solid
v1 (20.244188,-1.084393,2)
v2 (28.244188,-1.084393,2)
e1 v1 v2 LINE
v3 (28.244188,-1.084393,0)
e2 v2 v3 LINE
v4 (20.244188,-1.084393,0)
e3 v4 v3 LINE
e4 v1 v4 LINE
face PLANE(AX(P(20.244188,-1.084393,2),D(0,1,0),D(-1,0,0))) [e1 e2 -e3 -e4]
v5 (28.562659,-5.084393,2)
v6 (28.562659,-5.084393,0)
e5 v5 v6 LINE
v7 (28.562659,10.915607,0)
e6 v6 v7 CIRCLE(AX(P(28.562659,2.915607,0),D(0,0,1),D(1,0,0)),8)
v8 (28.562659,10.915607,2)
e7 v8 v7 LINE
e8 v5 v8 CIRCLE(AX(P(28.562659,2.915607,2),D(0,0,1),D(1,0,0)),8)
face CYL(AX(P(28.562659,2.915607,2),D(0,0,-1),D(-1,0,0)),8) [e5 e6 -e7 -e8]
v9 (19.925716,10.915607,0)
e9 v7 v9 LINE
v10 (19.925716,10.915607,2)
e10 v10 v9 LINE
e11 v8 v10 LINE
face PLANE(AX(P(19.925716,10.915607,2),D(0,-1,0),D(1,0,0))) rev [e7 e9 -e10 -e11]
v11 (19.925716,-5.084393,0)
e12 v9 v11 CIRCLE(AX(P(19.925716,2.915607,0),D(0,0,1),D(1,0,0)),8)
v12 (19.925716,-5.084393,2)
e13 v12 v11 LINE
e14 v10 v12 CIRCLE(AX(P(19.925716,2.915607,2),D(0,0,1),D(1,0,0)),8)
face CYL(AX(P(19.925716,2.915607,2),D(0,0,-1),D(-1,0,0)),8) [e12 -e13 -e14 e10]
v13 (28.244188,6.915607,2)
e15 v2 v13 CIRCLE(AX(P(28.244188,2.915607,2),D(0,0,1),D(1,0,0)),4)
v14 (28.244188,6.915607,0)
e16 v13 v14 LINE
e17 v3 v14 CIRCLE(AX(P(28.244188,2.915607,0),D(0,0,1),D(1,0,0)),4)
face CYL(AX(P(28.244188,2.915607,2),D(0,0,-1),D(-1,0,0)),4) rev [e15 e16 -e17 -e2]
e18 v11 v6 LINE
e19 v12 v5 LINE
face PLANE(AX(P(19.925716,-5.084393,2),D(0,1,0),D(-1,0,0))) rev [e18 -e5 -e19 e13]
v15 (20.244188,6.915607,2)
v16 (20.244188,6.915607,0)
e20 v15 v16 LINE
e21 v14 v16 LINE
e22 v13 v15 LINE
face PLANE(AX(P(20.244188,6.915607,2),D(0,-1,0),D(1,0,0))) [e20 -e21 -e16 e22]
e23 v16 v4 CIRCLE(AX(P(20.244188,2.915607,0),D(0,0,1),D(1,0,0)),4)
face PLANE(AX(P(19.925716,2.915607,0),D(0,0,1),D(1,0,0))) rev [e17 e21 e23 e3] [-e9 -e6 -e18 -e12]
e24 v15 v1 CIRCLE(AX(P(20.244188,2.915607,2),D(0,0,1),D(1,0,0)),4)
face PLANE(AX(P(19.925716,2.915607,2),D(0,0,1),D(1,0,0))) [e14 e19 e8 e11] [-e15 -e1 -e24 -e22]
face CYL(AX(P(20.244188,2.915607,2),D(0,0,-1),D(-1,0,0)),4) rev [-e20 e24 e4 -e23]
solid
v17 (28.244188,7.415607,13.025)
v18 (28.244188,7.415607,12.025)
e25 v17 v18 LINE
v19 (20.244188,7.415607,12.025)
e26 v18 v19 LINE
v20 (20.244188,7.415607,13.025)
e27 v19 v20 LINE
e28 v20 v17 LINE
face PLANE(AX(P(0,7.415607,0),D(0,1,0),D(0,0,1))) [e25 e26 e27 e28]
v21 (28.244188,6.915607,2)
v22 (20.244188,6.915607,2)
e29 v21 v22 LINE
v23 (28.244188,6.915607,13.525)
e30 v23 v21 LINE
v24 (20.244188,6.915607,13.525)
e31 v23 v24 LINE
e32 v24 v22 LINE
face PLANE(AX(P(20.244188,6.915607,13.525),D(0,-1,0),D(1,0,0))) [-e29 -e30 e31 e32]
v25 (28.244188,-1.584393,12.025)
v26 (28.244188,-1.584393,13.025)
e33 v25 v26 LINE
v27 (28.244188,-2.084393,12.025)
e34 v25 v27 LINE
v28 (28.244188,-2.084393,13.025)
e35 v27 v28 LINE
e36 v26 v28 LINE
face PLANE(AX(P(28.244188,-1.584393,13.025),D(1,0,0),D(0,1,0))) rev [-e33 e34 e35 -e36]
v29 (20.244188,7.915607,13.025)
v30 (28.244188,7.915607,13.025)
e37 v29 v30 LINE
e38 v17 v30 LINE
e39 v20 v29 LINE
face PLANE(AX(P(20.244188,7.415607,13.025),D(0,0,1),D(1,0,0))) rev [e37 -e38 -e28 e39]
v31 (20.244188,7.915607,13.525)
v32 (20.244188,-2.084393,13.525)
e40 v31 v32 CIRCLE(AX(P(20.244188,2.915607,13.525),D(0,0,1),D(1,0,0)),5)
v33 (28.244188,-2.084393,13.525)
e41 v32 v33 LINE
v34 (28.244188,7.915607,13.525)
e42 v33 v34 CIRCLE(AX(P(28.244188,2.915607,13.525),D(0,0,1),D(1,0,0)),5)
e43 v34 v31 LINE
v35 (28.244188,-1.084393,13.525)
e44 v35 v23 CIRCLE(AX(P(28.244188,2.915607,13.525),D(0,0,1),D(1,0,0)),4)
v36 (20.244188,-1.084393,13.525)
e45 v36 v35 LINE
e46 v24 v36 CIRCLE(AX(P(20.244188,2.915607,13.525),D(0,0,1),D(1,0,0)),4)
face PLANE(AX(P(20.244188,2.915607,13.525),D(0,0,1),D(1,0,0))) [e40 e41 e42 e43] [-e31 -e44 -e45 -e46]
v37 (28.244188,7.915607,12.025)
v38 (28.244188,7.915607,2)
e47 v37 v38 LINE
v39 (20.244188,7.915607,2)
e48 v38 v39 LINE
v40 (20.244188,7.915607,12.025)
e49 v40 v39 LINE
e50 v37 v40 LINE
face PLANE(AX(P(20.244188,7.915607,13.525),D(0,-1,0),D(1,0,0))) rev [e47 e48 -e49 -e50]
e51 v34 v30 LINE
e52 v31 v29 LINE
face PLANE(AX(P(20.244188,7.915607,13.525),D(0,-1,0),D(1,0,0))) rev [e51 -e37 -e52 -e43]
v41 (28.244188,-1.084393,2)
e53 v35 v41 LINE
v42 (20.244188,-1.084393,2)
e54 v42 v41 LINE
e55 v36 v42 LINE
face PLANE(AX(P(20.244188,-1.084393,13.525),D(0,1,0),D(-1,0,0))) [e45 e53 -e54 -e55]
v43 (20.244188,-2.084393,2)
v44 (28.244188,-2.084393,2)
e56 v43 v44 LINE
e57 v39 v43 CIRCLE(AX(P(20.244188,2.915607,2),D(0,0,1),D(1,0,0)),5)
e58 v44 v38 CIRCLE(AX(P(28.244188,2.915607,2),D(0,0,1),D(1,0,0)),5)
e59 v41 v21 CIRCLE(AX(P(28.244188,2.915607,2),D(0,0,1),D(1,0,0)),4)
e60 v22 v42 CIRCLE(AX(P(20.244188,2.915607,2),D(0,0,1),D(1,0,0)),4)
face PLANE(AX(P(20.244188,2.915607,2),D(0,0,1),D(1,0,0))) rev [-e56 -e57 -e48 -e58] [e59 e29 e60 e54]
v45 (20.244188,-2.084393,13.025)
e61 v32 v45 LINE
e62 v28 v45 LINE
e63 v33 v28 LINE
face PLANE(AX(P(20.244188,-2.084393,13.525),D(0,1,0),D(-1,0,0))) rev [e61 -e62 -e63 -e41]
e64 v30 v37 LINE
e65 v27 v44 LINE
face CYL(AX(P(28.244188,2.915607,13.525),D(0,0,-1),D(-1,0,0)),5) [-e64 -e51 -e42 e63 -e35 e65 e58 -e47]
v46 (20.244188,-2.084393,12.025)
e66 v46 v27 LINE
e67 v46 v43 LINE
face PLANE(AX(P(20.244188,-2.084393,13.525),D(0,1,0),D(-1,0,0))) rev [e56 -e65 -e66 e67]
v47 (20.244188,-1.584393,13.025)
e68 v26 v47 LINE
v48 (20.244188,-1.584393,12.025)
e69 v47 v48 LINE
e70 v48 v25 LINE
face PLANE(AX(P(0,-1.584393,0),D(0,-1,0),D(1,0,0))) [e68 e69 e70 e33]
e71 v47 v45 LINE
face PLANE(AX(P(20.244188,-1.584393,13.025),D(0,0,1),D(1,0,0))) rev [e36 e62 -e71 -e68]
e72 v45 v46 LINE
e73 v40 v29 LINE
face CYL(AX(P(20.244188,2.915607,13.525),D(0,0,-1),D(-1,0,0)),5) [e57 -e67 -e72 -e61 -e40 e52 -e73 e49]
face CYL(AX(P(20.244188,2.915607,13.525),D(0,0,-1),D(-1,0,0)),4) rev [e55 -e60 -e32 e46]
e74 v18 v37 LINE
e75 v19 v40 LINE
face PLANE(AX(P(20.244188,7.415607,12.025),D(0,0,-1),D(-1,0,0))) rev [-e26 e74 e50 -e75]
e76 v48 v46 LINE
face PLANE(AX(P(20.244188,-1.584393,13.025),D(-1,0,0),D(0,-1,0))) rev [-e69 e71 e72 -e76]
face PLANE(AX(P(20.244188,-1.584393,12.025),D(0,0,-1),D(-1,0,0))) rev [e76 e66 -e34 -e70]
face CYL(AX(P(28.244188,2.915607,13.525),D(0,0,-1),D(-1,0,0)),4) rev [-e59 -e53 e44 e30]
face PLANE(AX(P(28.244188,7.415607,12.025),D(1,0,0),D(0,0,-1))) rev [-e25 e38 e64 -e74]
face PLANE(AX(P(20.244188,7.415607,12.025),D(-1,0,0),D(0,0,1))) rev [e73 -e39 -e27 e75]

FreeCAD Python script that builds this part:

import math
import FreeCAD as App
import Part
import Sketcher

V = App.Vector
Q = App.Units.Quantity


def add_polygon(sketch, points):
    """Adds a closed chain of lines whose ends are joined by coincident constraints."""
    first, n = sketch.GeometryCount, len(points)
    for a, b in zip(points, points[1:] + points[:1]):
        sketch.addGeometry(Part.LineSegment(App.Vector(*a, 0), App.Vector(*b, 0)), False)
    for i in range(n):
        sketch.addConstraint(Sketcher.Constraint("Coincident", first + i, 2, first + (i + 1) % n, 1))

doc = App.newDocument("Part")
body = doc.addObject("PartDesign::Body", "Body")

sketch1 = doc.addObject("Sketcher::SketchObject", "Sketch")
body.addObject(sketch1)
sketch1.AttachmentSupport = (doc.XY_Plane, [""])
sketch1.MapMode = "FlatFace"
sketch1.addGeometry(Part.LineSegment(V(28.562659, 10.915607, 0), V(19.925716, 10.915607, 0)), False)
sketch1.addGeometry(Part.ArcOfCircle(Part.Circle(V(19.925716, 2.915607, 0), V(0, 0, 1), 8), math.radians(90), math.radians(270)), False)
sketch1.addGeometry(Part.LineSegment(V(19.925716, -5.084393, 0), V(28.562659, -5.084393, 0)), False)
sketch1.addGeometry(Part.ArcOfCircle(Part.Circle(V(28.562659, 2.915607, 0), V(0, 0, 1), 8), math.radians(-90), math.radians(90)), False)
sketch1.addGeometry(Part.LineSegment(V(20.244188, 6.915607, 0), V(28.244188, 6.915607, 0)), False)
sketch1.addGeometry(Part.ArcOfCircle(Part.Circle(V(28.244188, 2.915607, 0), V(0, 0, 1), 4), math.radians(-90), math.radians(90)), False)
sketch1.addGeometry(Part.LineSegment(V(28.244188, -1.084393, 0), V(20.244188, -1.084393, 0)), False)
sketch1.addGeometry(Part.ArcOfCircle(Part.Circle(V(20.244188, 2.915607, 0), V(0, 0, 1), 4), math.radians(90), math.radians(270)), False)
sketch1.addConstraint(Sketcher.Constraint("Tangent", 0, 2, 1, 1))
sketch1.addConstraint(Sketcher.Constraint("Tangent", 1, 2, 2, 1))
sketch1.addConstraint(Sketcher.Constraint("Tangent", 2, 2, 3, 1))
sketch1.addConstraint(Sketcher.Constraint("Tangent", 3, 2, 0, 1))
sketch1.addConstraint(Sketcher.Constraint("Tangent", 4, 2, 5, 2))
sketch1.addConstraint(Sketcher.Constraint("Tangent", 5, 1, 6, 1))
sketch1.addConstraint(Sketcher.Constraint("Tangent", 6, 2, 7, 2))
sketch1.addConstraint(Sketcher.Constraint("Tangent", 7, 1, 4, 1))
sketch1.addConstraint(Sketcher.Constraint("Horizontal", 0))
sketch1.addConstraint(Sketcher.Constraint("Horizontal", 2))
sketch1.addConstraint(Sketcher.Constraint("Horizontal", 4))
sketch1.addConstraint(Sketcher.Constraint("Horizontal", 6))
sketch1.addConstraint(Sketcher.Constraint("Horizontal", 3, 3, 5, 3))
sketch1.addConstraint(Sketcher.Constraint("Radius", 1, Q("8 mm")))
sketch1.addConstraint(Sketcher.Constraint("Radius", 5, Q("4 mm")))
sketch1.addConstraint(Sketcher.Constraint("DistanceX", 4, 1, 4, 2, Q("8 mm")))
sketch1.addConstraint(Sketcher.Constraint("DistanceX", 0, 2, 0, 1, Q("8.636943 mm")))
sketch1.addConstraint(Sketcher.Constraint("DistanceX", -1, 1, 3, 3, Q("28.562659 mm")))
sketch1.addConstraint(Sketcher.Constraint("DistanceX", 5, 3, 3, 3, Q("0.318471 mm")))
sketch1.addConstraint(Sketcher.Constraint("DistanceY", -1, 1, 1, 3, Q("2.915607 mm")))
pad1 = doc.addObject("PartDesign::Pad", "Pad")
body.addObject(pad1)
pad1.Profile = sketch1
pad1.Length = 2
body2 = doc.addObject("PartDesign::Body", "Body001")

sketch2 = doc.addObject("Sketcher::SketchObject", "Sketch001")
body2.addObject(sketch2)
sketch2.AttachmentSupport = (doc.getObject("XY_Plane001"), [""])
sketch2.MapMode = "FlatFace"
sketch2.AttachmentOffset = App.Placement(V(0, 0, 2), App.Rotation())
sketch2.addGeometry(Part.LineSegment(V(28.244188, 7.915607, 0), V(20.244188, 7.915607, 0)), False)
sketch2.addGeometry(Part.ArcOfCircle(Part.Circle(V(20.244188, 2.915607, 0), V(0, 0, 1), 5), math.radians(90), math.radians(270)), False)
sketch2.addGeometry(Part.LineSegment(V(20.244188, -2.084393, 0), V(28.244188, -2.084393, 0)), False)
sketch2.addGeometry(Part.ArcOfCircle(Part.Circle(V(28.244188, 2.915607, 0), V(0, 0, 1), 5), math.radians(-90), math.radians(90)), False)
sketch2.addGeometry(Part.LineSegment(V(20.244188, 6.915607, 0), V(28.244188, 6.915607, 0)), False)
sketch2.addGeometry(Part.ArcOfCircle(Part.Circle(V(28.244188, 2.915607, 0), V(0, 0, 1), 4), math.radians(-90), math.radians(90)), False)
sketch2.addGeometry(Part.LineSegment(V(28.244188, -1.084393, 0), V(20.244188, -1.084393, 0)), False)
sketch2.addGeometry(Part.ArcOfCircle(Part.Circle(V(20.244188, 2.915607, 0), V(0, 0, 1), 4), math.radians(90), math.radians(270)), False)
sketch2.addConstraint(Sketcher.Constraint("Tangent", 0, 2, 1, 1))
sketch2.addConstraint(Sketcher.Constraint("Tangent", 1, 2, 2, 1))
sketch2.addConstraint(Sketcher.Constraint("Tangent", 2, 2, 3, 1))
sketch2.addConstraint(Sketcher.Constraint("Tangent", 3, 2, 0, 1))
sketch2.addConstraint(Sketcher.Constraint("Tangent", 4, 2, 5, 2))
sketch2.addConstraint(Sketcher.Constraint("Tangent", 5, 1, 6, 1))
sketch2.addConstraint(Sketcher.Constraint("Tangent", 6, 2, 7, 2))
sketch2.addConstraint(Sketcher.Constraint("Tangent", 7, 1, 4, 1))
sketch2.addConstraint(Sketcher.Constraint("Horizontal", 0))
sketch2.addConstraint(Sketcher.Constraint("Horizontal", 2))
sketch2.addConstraint(Sketcher.Constraint("Horizontal", 4))
sketch2.addConstraint(Sketcher.Constraint("Horizontal", 6))
sketch2.addConstraint(Sketcher.Constraint("Coincident", 5, 3, 3, 3))
sketch2.addConstraint(Sketcher.Constraint("Vertical", 7, 3, 0, 2))
sketch2.addConstraint(Sketcher.Constraint("Radius", 1, Q("5 mm")))
sketch2.addConstraint(Sketcher.Constraint("Radius", 5, Q("4 mm")))
sketch2.addConstraint(Sketcher.Constraint("DistanceX", 0, 2, 0, 1, Q("8 mm")))
sketch2.addConstraint(Sketcher.Constraint("DistanceX", -1, 1, 1, 3, Q("20.244188 mm")))
sketch2.addConstraint(Sketcher.Constraint("DistanceY", -1, 1, 1, 3, Q("2.915607 mm")))
pad2 = doc.addObject("PartDesign::Pad", "Pad001")
body2.addObject(pad2)
pad2.Profile = sketch2
pad2.Length = 11.525

sketch3 = doc.addObject("Sketcher::SketchObject", "Sketch002")
body2.addObject(sketch3)
sketch3.AttachmentSupport = (doc.getObject("XZ_Plane001"), [""])
sketch3.MapMode = "FlatFace"
sketch3.AttachmentOffset = App.Placement(V(0, 0, 2.084393), App.Rotation())
add_polygon(sketch3, [(20.244188, 13.025), (20.244188, 12.025), (28.244188, 12.025), (28.244188, 13.025)])
sketch3.addConstraint(Sketcher.Constraint("Vertical", 0))
sketch3.addConstraint(Sketcher.Constraint("Horizontal", 1))
sketch3.addConstraint(Sketcher.Constraint("Vertical", 2))
sketch3.addConstraint(Sketcher.Constraint("Horizontal", 3))
sketch3.addConstraint(Sketcher.Constraint("DistanceX", 1, 1, 1, 2, Q("8 mm")))
sketch3.addConstraint(Sketcher.Constraint("DistanceY", 0, 2, 0, 1, Q("1 mm")))
sketch3.addConstraint(Sketcher.Constraint("DistanceY", -1, 1, 0, 2, Q("12.025 mm")))
sketch3.addConstraint(Sketcher.Constraint("DistanceX", -1, 1, 0, 2, Q("20.244188 mm")))
pocket1 = doc.addObject("PartDesign::Pocket", "Pocket")
body2.addObject(pocket1)
pocket1.Profile = sketch3
pocket1.Length = 0.5

sketch4 = doc.addObject("Sketcher::SketchObject", "Sketch003")
body2.addObject(sketch4)
sketch4.AttachmentSupport = (doc.getObject("XZ_Plane001"), [""])
sketch4.MapMode = "FlatFace"
sketch4.AttachmentOffset = App.Placement(V(0, 0, -7.915607), App.Rotation())
add_polygon(sketch4, [(20.244188, 12.025), (20.244188, 13.025), (28.244188, 13.025), (28.244188, 12.025)])
sketch4.addConstraint(Sketcher.Constraint("Vertical", 0))
sketch4.addConstraint(Sketcher.Constraint("Horizontal", 1))
sketch4.addConstraint(Sketcher.Constraint("Vertical", 2))
sketch4.addConstraint(Sketcher.Constraint("Horizontal", 3))
sketch4.addConstraint(Sketcher.Constraint("DistanceX", 1, 1, 1, 2, Q("8 mm")))
sketch4.addConstraint(Sketcher.Constraint("DistanceY", 0, 1, 0, 2, Q("1 mm")))
sketch4.addConstraint(Sketcher.Constraint("DistanceY", -1, 1, 0, 2, Q("13.025 mm")))
sketch4.addConstraint(Sketcher.Constraint("DistanceX", -1, 1, 0, 2, Q("20.244188 mm")))
pocket2 = doc.addObject("PartDesign::Pocket", "Pocket001")
body2.addObject(pocket2)
pocket2.Profile = sketch4
pocket2.Length = 0.5
pocket2.Reversed = True

doc.recompute()
